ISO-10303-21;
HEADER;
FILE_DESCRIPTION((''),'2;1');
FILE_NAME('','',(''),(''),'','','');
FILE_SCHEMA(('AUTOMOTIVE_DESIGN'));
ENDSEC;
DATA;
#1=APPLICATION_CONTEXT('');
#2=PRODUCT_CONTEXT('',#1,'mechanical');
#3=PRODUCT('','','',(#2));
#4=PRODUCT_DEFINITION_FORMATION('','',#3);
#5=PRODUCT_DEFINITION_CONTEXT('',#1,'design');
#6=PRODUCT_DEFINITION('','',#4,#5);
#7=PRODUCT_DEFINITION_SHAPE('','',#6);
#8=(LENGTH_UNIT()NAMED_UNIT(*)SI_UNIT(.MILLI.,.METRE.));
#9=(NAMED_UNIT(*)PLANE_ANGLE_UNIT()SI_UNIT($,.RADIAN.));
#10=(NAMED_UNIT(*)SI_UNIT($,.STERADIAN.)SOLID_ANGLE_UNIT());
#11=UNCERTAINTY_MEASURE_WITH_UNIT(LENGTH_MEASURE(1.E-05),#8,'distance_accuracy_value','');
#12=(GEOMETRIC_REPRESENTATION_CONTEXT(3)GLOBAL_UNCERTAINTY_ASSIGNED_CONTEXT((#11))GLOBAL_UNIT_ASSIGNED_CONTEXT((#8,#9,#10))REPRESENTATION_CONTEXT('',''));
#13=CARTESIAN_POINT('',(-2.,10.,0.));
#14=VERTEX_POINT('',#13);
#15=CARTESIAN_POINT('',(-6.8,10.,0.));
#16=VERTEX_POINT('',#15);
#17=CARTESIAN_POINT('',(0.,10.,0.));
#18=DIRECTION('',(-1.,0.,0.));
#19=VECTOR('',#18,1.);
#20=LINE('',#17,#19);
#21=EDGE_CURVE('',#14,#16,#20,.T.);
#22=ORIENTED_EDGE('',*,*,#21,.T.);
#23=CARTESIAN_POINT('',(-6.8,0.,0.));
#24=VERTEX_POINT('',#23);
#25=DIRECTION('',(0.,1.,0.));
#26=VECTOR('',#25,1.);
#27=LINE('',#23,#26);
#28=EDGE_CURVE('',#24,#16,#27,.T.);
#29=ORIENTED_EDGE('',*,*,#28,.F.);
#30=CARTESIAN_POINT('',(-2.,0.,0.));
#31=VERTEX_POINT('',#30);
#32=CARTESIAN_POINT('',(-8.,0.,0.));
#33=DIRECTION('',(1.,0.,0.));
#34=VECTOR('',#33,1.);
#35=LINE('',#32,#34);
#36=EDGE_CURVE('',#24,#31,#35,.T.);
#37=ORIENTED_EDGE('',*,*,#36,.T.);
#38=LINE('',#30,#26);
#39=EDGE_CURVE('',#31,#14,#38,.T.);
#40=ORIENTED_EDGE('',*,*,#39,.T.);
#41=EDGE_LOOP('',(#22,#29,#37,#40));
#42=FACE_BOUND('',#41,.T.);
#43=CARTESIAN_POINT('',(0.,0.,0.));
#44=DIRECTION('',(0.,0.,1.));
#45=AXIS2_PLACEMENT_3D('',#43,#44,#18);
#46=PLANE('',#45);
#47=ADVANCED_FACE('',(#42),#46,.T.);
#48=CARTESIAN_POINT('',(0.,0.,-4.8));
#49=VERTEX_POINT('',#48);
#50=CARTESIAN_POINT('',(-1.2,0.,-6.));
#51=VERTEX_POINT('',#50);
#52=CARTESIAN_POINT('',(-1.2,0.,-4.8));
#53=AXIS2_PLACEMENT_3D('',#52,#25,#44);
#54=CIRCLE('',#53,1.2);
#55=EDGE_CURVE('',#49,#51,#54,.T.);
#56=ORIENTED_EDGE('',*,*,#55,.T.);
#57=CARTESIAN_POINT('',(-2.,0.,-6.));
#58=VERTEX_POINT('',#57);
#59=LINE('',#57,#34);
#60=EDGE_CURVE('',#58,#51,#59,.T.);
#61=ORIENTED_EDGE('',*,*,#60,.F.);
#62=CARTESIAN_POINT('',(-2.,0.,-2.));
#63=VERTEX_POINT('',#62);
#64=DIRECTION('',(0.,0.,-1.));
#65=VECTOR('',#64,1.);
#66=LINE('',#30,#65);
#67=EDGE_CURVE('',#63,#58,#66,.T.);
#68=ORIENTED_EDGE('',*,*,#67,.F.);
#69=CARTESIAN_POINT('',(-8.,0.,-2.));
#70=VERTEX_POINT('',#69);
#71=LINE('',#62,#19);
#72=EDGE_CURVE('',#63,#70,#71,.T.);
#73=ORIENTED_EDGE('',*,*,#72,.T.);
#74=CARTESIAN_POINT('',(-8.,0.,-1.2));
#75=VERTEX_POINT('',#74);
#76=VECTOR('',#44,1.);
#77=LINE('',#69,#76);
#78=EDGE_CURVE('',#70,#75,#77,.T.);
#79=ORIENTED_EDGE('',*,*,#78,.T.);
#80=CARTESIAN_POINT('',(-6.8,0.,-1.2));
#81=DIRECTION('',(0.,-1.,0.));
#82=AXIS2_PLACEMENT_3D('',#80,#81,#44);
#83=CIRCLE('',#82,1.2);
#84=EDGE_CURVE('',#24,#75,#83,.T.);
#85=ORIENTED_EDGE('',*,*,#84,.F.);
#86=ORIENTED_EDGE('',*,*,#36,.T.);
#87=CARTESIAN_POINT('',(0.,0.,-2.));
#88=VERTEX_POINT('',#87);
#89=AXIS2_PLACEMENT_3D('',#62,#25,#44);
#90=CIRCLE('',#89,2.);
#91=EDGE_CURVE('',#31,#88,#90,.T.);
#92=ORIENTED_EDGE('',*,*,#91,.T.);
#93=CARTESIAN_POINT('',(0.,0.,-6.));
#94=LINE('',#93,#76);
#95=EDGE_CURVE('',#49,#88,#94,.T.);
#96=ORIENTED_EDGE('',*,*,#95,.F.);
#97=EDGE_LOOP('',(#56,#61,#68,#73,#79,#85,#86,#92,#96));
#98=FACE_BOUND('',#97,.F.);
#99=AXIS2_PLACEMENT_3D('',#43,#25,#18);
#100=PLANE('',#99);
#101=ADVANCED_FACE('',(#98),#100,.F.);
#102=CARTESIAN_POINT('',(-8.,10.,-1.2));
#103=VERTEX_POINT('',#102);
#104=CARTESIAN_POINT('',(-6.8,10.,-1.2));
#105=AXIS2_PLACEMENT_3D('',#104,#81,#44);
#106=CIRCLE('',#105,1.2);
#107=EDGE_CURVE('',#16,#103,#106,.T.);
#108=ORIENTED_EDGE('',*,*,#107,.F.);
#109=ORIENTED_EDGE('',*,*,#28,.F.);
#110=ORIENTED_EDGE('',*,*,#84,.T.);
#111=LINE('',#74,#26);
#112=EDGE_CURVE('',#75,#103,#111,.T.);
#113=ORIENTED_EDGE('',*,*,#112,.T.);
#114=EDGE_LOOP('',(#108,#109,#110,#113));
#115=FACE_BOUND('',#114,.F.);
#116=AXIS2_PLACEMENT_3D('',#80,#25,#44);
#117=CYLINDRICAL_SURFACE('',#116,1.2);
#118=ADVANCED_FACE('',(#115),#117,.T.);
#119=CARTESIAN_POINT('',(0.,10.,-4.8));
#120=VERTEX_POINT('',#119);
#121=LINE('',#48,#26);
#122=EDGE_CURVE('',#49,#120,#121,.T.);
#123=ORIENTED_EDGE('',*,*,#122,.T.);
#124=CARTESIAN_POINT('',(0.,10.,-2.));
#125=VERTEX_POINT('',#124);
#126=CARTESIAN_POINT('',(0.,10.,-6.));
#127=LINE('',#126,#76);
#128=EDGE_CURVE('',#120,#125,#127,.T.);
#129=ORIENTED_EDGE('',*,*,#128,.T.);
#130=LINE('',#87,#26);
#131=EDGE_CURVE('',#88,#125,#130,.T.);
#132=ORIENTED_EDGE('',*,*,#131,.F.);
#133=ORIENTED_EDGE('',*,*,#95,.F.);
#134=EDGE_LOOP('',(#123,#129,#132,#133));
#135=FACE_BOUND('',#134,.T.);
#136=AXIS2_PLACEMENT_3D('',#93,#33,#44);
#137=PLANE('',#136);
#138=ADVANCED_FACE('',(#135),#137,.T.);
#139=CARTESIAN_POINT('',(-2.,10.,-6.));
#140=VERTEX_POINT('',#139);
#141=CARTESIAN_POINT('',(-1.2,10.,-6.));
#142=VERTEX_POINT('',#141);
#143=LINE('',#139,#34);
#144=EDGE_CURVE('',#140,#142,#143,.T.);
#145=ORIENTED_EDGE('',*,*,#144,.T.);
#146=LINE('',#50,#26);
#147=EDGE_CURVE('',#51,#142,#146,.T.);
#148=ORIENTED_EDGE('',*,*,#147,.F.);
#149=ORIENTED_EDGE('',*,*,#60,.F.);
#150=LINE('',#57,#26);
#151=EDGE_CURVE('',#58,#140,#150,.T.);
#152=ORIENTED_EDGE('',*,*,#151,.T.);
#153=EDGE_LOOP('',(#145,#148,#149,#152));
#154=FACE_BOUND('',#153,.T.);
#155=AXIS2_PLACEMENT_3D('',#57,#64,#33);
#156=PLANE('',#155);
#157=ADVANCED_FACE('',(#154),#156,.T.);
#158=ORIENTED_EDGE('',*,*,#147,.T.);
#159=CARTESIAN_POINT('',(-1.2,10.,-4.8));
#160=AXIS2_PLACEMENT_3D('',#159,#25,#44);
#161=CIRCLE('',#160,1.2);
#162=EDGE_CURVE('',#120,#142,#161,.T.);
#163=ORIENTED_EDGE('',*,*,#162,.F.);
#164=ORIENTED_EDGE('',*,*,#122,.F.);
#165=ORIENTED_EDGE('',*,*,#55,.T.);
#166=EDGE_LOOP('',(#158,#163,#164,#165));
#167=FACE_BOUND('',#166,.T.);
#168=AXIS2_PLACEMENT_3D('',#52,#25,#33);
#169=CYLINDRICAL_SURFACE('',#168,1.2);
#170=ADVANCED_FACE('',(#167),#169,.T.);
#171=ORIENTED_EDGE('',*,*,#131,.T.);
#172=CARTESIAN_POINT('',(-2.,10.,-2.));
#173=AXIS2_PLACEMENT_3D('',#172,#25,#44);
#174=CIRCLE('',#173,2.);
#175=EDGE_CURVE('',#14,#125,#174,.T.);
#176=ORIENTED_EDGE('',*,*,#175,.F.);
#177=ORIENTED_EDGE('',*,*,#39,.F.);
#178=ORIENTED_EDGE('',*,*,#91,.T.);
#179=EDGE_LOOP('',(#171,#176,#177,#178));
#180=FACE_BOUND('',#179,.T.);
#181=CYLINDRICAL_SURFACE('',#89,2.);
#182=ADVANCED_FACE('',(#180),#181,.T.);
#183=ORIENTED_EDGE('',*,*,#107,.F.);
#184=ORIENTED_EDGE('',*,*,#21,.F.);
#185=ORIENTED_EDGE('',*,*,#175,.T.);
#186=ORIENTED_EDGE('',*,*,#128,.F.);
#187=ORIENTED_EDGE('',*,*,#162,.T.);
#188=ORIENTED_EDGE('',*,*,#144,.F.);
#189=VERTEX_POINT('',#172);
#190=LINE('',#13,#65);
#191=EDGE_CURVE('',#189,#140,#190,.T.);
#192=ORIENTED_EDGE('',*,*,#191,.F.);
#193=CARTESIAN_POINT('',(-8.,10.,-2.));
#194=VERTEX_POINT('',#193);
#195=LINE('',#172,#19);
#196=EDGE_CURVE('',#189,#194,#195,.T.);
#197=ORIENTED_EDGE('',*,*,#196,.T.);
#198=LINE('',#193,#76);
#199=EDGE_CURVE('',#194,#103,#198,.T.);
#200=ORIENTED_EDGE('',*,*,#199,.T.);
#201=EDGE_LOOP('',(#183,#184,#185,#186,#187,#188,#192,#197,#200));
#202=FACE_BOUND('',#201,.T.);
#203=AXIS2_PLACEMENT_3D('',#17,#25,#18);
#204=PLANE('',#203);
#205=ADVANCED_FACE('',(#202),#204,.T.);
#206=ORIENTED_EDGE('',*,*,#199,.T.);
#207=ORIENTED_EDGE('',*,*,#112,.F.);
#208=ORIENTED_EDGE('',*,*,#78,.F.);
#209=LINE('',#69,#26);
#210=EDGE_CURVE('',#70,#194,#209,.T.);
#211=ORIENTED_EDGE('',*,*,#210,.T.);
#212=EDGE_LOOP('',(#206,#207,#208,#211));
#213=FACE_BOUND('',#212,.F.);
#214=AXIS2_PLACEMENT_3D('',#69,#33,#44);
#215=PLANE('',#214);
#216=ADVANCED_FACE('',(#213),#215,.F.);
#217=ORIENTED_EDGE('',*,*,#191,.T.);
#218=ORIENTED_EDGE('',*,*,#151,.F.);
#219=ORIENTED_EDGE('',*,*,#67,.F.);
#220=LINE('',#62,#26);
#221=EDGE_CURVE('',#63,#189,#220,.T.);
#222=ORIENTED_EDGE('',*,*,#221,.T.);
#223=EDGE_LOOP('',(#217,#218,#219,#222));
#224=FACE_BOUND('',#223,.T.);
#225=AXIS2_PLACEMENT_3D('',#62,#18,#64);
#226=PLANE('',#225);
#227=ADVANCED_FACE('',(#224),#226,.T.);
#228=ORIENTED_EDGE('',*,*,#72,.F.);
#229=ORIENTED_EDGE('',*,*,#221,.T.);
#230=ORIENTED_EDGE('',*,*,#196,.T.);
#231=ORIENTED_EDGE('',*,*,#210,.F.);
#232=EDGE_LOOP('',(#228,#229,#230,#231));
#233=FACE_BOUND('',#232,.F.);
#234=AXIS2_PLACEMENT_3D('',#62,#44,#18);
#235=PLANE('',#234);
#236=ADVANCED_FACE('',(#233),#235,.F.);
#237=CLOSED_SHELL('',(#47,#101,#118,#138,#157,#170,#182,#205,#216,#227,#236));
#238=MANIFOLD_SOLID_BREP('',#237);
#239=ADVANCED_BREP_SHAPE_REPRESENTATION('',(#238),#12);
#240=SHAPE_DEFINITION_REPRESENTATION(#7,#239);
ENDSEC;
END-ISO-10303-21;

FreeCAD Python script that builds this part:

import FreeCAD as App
import Part
import Sketcher

V = App.Vector


def edges_at(feature, points):
    """Names of the edges that pass closest to the given points."""
    edges = feature.Shape.Edges
    near = lambda p: min(range(len(edges)), key=lambda i: edges[i].distToShape(Part.Vertex(*p))[0])
    return sorted({f"Edge{near(p) + 1}" for p in points})


def add_polygon(sketch, points):
    """Adds a closed chain of lines whose ends are joined by coincident constraints."""
    first, n = sketch.GeometryCount, len(points)
    for a, b in zip(points, points[1:] + points[:1]):
        sketch.addGeometry(Part.LineSegment(App.Vector(*a, 0), App.Vector(*b, 0)), False)
    for i in range(n):
        sketch.addConstraint(Sketcher.Constraint("Coincident", first + i, 2, first + (i + 1) % n, 1))

doc = App.newDocument("Part")
params = doc.addObject("Spreadsheet::Sheet", "Params")
for row, (alias, value) in enumerate([
    ("sketch1_width", "2 mm"),
    ("sketch1_width2", "6 mm"),
    ("pad1_length", "10 mm"),
    ("fillet_radius", "2 mm"),
    ("fillet2_radius", "1.2 mm"),
], start=1):
    params.set(f"A{row}", alias)
    params.set(f"B{row}", "=" + value)
    params.setAlias(f"B{row}", alias)

body = doc.addObject("PartDesign::Body", "Body")

sketch1 = body.newObject("Sketcher::SketchObject", "Sketch")
sketch1.AttachmentSupport = (doc.getObject("XZ_Plane"), [""])
sketch1.MapMode = "FlatFace"
add_polygon(sketch1, [(0, 0), (0, -6), (-2, -6), (-2, -2), (-8, -2), (-8, 0)])
sketch1.addConstraint(Sketcher.Constraint("Vertical", 0))
sketch1.addConstraint(Sketcher.Constraint("Horizontal", 1))
sketch1.addConstraint(Sketcher.Constraint("Vertical", 2))
sketch1.addConstraint(Sketcher.Constraint("Horizontal", 3))
sketch1.addConstraint(Sketcher.Constraint("Vertical", 4))
sketch1.addConstraint(Sketcher.Constraint("Horizontal", 5))
sketch1.addConstraint(Sketcher.Constraint("Coincident", 5, 2, -1, 1))
sketch1.addConstraint(Sketcher.Constraint("Equal", 3, 0))
sketch1.addConstraint(Sketcher.Constraint("Equal", 1, 4))
sketch1.addConstraint(Sketcher.Constraint("DistanceX", 1, 2, 1, 1, 2.0))
sketch1.addConstraint(Sketcher.Constraint("DistanceX", 3, 2, 3, 1, 6.0))
sketch1.setExpression("Constraints[15]", "Params.sketch1_width")
sketch1.setExpression("Constraints[16]", "Params.sketch1_width2")
pad1 = body.newObject("PartDesign::Pad", "Pad")
pad1.Profile = sketch1
pad1.setExpression("Length", "Params.pad1_length")
pad1.Reversed = True
doc.recompute()

fillet = body.newObject("PartDesign::Fillet", "Fillet")
fillet.Base = (pad1, edges_at(pad1, [(0, 5, 0)]))
fillet.setExpression("Radius", "Params.fillet_radius")
doc.recompute()

fillet2 = body.newObject("PartDesign::Fillet", "Fillet001")
fillet2.Base = (fillet, edges_at(fillet, [(0, 5, -6), (-8, 5, 0)]))
fillet2.setExpression("Radius", "Params.fillet2_radius")

doc.recompute()
